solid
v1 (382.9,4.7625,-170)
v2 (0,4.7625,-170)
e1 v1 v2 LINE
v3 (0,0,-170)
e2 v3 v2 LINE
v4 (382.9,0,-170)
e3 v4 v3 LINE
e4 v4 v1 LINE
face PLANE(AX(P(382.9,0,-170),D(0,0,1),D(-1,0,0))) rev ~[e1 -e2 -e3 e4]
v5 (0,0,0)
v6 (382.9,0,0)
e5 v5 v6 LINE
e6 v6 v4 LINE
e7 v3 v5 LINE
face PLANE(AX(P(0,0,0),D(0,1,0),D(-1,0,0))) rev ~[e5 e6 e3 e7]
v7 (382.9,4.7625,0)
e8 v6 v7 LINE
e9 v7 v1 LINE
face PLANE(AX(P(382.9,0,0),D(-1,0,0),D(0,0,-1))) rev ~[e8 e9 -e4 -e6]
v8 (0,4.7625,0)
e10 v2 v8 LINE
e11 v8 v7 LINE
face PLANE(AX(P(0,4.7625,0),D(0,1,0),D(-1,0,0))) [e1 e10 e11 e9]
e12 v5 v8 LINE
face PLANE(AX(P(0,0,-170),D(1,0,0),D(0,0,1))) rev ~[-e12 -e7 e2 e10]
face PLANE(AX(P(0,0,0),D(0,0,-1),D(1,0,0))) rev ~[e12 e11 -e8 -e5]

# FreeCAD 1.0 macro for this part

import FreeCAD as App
import Part
import Sketcher

V = App.Vector
Q = App.Units.Quantity


def add_polygon(sketch, points):
    """Adds a closed chain of lines whose ends are joined by coincident constraints."""
    first, n = sketch.GeometryCount, len(points)
    for a, b in zip(points, points[1:] + points[:1]):
        sketch.addGeometry(Part.LineSegment(App.Vector(*a, 0), App.Vector(*b, 0)), False)
    for i in range(n):
        sketch.addConstraint(Sketcher.Constraint("Coincident", first + i, 2, first + (i + 1) % n, 1))

doc = App.newDocument("Part")
body = doc.addObject("PartDesign::Body", "Body")

# Sketch on XZ plane
sketch1 = body.newObject("Sketcher::SketchObject", "Sketch")
sketch1.AttachmentSupport = (doc.getObject("XZ_Plane"), [""])
sketch1.MapMode = "FlatFace"
add_polygon(sketch1, [(0, -170), (0, 0), (383, 0), (383, -170)])  # lines 0-3
sketch1.addConstraint(Sketcher.Constraint("Vertical", 0))
sketch1.addConstraint(Sketcher.Constraint("Horizontal", 1))
sketch1.addConstraint(Sketcher.Constraint("Vertical", 2))
sketch1.addConstraint(Sketcher.Constraint("Horizontal", 3))
sketch1.addConstraint(Sketcher.Constraint("Coincident", 0, 2, -1, 1))
sketch1.addConstraint(Sketcher.Constraint("DistanceY", 0, 1, 0, 2, Q("170 mm")))
sketch1.addConstraint(Sketcher.Constraint("DistanceX", 1, 1, 1, 2, Q("382.9 mm")))
pad1 = body.newObject("PartDesign::Pad", "Pad")
pad1.Profile = sketch1
pad1.Length = 4.7625
pad1.Reversed = True

doc.recompute()
